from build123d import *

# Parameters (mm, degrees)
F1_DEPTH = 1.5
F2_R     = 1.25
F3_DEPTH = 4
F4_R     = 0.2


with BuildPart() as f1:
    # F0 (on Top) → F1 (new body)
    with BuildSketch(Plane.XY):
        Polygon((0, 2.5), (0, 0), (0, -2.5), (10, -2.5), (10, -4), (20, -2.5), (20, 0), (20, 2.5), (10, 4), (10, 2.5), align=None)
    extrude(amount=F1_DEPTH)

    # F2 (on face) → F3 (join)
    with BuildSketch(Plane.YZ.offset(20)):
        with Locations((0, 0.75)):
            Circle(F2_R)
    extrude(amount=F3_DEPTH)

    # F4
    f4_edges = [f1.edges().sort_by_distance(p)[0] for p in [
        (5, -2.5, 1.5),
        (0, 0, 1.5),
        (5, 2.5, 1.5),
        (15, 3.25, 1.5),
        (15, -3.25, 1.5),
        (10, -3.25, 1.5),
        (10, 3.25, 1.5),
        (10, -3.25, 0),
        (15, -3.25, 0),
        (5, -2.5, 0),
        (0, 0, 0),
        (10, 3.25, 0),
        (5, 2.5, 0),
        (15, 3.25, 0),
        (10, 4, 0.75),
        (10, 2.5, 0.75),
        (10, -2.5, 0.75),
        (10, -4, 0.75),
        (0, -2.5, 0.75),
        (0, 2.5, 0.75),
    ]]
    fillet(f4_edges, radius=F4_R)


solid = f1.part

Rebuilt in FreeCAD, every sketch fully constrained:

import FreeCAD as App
import Part
import Sketcher
Q = App.Units.Quantity


def edges_at(feature, points):
    """Names of the edges that pass closest to the given points."""
    edges = feature.Shape.Edges
    near = lambda p: min(range(len(edges)), key=lambda i: edges[i].distToShape(Part.Vertex(*p))[0])
    return sorted({f"Edge{near(p) + 1}" for p in points})


def add_polygon(sketch, points):
    """Adds a closed chain of lines whose ends are joined by coincident constraints."""
    first, n = sketch.GeometryCount, len(points)
    for a, b in zip(points, points[1:] + points[:1]):
        sketch.addGeometry(Part.LineSegment(App.Vector(*a, 0), App.Vector(*b, 0)), False)
    for i in range(n):
        sketch.addConstraint(Sketcher.Constraint("Coincident", first + i, 2, first + (i + 1) % n, 1))

doc = App.newDocument("Part")
body = doc.addObject("PartDesign::Body", "Body")

# Sketch on XY plane
sketch1 = body.newObject("Sketcher::SketchObject", "Sketch")
sketch1.AttachmentSupport = (doc.getObject("XY_Plane"), [""])
sketch1.MapMode = "FlatFace"
add_polygon(sketch1, [(0, 2.5), (0, -2.5), (10, -2.5), (10, -4), (20, -2.5), (20, 2.5), (10, 4), (10, 2.5)])  # lines 0-7
sketch1.addConstraint([
    Sketcher.Constraint("Vertical", 0),
    Sketcher.Constraint("Horizontal", 1),
    Sketcher.Constraint("Vertical", 2),
    Sketcher.Constraint("Vertical", 4),
    Sketcher.Constraint("Vertical", 6),
    Sketcher.Constraint("Horizontal", 7),
    Sketcher.Constraint("Symmetric", 0, 2, 7, 2, -1, 1),
    Sketcher.Constraint("Symmetric", 2, 2, 5, 2, -1),
    Sketcher.Constraint("Horizontal", 1, 2, 3, 2),
    Sketcher.Constraint("Horizontal", 4, 2, 6, 2),
    Sketcher.Constraint("DistanceX", 1, 1, 1, 2, Q("10 mm")),
    Sketcher.Constraint("DistanceY", 0, 2, 0, 1, Q("5 mm")),
    Sketcher.Constraint("DistanceY", 2, 2, 2, 1, Q("1.5 mm")),
    Sketcher.Constraint("DistanceX", -1, 1, 3, 2, Q("20 mm")),
])
pad1 = body.newObject("PartDesign::Pad", "Pad")
pad1.Profile = sketch1
pad1.Length = 1.5

# Sketch on YZ plane
sketch2 = body.newObject("Sketcher::SketchObject", "Sketch001")
sketch2.AttachmentSupport = (doc.getObject("YZ_Plane"), [""])
sketch2.MapMode = "FlatFace"
sketch2.AttachmentOffset = App.Placement(App.Vector(0, 0, 20), App.Rotation())
sketch2.addGeometry(Part.Circle(App.Vector(0, 0.8, 0), App.Vector(0, 0, 1), 1.2), False)
sketch2.addConstraint([
    Sketcher.Constraint("PointOnObject", 0, 3, -2),
    Sketcher.Constraint("Diameter", 0, Q("2.5 mm")),
    Sketcher.Constraint("DistanceY", -1, 1, 0, 3, Q("0.75 mm")),
])
pad2 = body.newObject("PartDesign::Pad", "Pad001")
pad2.Profile = sketch2
pad2.Length = 4
doc.recompute()

fillet = body.newObject("PartDesign::Fillet", "Fillet")
fillet.Base = (pad2, edges_at(pad2, [
    (5, -2.5, 1.5),
    (0, 0, 1.5),
    (5, 2.5, 1.5),
    (15, 3.25, 1.5),
    (15, -3.25, 1.5),
    (10, -3.25, 1.5),
    (10, 3.25, 1.5),
    (10, -3.25, 0),
    (15, -3.25, 0),
    (5, -2.5, 0),
    (0, 0, 0),
    (10, 3.25, 0),
    (5, 2.5, 0),
    (15, 3.25, 0),
    (10, 4, 0.75),
    (10, 2.5, 0.75),
    (10, -2.5, 0.75),
    (10, -4, 0.75),
    (0, -2.5, 0.75),
    (0, 2.5, 0.75),
]))
fillet.Radius = 0.2

doc.recompute()
